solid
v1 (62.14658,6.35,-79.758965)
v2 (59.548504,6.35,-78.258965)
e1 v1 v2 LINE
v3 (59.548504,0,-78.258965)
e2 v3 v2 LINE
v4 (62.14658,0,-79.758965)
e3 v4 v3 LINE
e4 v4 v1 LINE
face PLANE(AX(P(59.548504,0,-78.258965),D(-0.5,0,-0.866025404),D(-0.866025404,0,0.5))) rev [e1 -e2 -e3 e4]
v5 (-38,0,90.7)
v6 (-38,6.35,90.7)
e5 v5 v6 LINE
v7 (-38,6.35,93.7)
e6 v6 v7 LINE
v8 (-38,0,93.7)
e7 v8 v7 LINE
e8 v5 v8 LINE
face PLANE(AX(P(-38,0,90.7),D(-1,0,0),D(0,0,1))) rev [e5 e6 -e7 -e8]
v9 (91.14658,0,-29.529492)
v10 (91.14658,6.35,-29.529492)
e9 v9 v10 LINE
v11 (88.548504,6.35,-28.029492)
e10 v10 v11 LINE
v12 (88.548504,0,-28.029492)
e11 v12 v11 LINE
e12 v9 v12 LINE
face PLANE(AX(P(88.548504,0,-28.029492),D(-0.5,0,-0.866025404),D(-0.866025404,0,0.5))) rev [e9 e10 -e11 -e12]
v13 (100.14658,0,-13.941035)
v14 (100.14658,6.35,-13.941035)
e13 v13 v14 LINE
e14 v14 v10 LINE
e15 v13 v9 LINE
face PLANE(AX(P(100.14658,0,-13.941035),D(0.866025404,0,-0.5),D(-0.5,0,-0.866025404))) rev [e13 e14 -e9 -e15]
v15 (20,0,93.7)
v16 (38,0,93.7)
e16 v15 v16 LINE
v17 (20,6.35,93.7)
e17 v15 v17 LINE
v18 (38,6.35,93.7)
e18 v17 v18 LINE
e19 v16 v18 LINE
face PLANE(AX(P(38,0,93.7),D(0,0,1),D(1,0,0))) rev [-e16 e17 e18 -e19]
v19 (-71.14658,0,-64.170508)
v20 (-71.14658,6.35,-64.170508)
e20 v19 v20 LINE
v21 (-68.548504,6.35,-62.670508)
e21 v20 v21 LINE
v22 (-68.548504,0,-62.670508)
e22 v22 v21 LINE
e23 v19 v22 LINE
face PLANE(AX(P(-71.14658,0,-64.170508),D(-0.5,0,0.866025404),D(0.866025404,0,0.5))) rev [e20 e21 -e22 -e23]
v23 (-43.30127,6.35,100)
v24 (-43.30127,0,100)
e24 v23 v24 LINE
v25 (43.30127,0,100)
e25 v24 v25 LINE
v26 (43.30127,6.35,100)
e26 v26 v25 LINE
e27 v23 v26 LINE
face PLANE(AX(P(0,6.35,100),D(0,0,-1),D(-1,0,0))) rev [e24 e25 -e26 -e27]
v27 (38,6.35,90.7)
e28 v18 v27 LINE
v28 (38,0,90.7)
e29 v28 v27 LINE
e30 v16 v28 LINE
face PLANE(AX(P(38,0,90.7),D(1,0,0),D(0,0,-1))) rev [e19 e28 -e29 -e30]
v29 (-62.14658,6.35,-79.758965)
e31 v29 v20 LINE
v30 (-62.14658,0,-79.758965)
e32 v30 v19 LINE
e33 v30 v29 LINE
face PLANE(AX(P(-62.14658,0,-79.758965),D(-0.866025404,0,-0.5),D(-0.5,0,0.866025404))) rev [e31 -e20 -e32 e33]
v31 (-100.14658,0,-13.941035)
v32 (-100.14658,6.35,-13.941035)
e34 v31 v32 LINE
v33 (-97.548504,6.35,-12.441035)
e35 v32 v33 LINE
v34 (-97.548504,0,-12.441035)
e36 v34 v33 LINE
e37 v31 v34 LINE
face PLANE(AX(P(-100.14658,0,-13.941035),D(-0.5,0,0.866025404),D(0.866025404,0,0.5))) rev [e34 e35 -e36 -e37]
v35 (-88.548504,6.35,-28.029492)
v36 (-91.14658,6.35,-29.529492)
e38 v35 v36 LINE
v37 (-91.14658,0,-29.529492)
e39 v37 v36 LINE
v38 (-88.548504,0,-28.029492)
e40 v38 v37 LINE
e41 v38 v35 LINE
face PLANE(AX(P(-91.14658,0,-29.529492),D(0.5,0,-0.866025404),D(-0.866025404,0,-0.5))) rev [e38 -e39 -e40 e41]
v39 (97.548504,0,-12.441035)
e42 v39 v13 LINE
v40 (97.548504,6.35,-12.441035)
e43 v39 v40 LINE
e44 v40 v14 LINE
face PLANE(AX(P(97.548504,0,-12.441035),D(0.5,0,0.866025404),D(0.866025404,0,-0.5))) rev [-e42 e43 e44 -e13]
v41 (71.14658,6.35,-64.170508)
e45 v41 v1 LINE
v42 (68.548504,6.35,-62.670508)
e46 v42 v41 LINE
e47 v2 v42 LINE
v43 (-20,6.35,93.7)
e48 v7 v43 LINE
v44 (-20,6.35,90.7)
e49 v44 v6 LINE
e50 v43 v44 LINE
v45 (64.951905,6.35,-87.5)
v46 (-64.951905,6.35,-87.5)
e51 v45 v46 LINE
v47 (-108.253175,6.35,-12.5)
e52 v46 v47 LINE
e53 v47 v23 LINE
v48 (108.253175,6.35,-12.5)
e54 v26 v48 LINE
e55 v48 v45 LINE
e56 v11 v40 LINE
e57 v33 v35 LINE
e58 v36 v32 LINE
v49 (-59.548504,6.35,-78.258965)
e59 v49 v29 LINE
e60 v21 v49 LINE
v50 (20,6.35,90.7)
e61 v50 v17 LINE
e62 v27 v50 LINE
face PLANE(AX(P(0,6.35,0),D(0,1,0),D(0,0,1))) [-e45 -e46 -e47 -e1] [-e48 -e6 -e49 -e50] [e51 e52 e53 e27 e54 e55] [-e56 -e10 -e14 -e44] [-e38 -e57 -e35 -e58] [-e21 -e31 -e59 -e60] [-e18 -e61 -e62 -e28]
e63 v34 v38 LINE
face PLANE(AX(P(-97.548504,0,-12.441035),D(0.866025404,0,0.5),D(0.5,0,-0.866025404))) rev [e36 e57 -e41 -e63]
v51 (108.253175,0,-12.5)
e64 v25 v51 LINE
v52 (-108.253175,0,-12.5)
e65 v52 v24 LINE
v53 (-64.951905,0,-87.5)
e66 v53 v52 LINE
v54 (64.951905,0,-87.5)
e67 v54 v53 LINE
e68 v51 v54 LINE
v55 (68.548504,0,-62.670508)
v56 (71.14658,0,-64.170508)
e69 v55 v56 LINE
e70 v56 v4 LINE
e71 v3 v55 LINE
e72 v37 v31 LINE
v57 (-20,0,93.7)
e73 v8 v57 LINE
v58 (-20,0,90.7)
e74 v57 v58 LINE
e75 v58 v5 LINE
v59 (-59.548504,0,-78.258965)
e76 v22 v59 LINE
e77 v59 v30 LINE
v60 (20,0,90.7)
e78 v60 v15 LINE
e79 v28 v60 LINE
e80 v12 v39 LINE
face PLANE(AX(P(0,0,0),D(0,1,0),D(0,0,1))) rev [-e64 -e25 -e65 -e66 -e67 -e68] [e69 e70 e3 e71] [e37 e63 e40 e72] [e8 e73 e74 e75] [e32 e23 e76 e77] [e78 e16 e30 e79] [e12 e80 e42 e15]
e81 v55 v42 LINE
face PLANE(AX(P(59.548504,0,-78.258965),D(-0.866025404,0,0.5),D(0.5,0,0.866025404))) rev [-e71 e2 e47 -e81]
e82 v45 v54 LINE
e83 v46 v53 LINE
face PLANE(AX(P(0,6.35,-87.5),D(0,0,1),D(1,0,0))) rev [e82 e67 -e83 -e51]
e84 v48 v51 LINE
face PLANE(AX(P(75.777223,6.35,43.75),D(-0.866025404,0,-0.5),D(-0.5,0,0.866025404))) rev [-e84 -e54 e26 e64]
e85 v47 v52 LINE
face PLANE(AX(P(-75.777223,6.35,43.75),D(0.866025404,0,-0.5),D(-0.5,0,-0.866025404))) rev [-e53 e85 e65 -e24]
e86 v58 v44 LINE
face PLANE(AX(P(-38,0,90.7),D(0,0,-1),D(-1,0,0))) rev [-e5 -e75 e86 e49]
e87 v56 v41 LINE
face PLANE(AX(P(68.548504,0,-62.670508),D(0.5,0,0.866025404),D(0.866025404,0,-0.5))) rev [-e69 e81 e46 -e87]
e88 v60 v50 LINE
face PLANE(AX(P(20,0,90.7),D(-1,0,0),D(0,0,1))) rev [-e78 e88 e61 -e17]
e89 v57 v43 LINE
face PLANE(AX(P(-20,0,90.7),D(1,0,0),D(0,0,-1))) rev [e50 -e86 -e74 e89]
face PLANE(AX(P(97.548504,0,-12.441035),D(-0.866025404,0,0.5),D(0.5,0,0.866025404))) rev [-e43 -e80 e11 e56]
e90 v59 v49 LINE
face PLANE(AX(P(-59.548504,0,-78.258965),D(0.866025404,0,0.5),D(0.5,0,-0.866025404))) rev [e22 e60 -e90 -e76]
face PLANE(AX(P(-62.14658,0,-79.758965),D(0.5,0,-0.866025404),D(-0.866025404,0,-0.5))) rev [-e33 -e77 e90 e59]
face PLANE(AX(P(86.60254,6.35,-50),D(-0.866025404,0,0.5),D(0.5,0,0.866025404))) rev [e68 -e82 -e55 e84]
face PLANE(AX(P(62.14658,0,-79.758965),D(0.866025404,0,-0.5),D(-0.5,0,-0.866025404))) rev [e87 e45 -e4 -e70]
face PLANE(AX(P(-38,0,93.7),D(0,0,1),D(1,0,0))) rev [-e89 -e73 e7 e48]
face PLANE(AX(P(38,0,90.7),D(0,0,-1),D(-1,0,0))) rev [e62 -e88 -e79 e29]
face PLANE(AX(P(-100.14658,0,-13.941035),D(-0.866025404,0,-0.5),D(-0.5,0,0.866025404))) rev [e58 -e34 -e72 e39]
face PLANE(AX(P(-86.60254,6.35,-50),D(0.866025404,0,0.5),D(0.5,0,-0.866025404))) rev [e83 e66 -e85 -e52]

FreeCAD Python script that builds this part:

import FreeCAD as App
import Part
import Sketcher

V = App.Vector
Q = App.Units.Quantity

doc = App.newDocument("Part")
body = doc.addObject("PartDesign::Body", "Body")

# Sketch on XZ plane
sketch1 = doc.addObject("Sketcher::SketchObject", "Sketch")
body.addObject(sketch1)
sketch1.AttachmentSupport = (doc.XZ_Plane, [""])
sketch1.MapMode = "FlatFace"
sketch1.addGeometry([
    Part.LineSegment(V(65, -88, 0), V(-65, -88, 0)),  # 0
    Part.LineSegment(V(-65, -88, 0), V(-108, -12, 0)),  # 1
    Part.LineSegment(V(-108, -12, 0), V(-43, 100, 0)),  # 2
    Part.LineSegment(V(-43, 100, 0), V(43, 100, 0)),  # 3
    Part.LineSegment(V(43, 100, 0), V(108, -12, 0)),  # 4
    Part.LineSegment(V(108, -12, 0), V(65, -88, 0)),  # 5
], False)
sketch1.addConstraint([
    Sketcher.Constraint("Coincident", 0, 2, 1, 1),
    Sketcher.Constraint("Coincident", 1, 2, 2, 1),
    Sketcher.Constraint("Coincident", 2, 2, 3, 1),
    Sketcher.Constraint("Coincident", 3, 2, 4, 1),
    Sketcher.Constraint("Coincident", 4, 2, 5, 1),
    Sketcher.Constraint("Coincident", 5, 2, 0, 1),
    Sketcher.Constraint("Horizontal", 0),
    Sketcher.Constraint("Horizontal", 3),
    Sketcher.Constraint("Symmetric", 1, 2, 4, 2, -2),
    Sketcher.Constraint("Parallel", 1, 4),
    Sketcher.Constraint("Parallel", 2, 5),
    Sketcher.Constraint("Equal", 2, 4),
    Sketcher.Constraint("Angle", 1, Q("120 deg")),
    Sketcher.Constraint("DistanceY", -1, 1, 2, 2, 100.0),
    Sketcher.Constraint("DistanceY", 0, 2, 1, 2, 75.0),
    Sketcher.Constraint("DistanceY", 0, 2, -1, 1, 87.5),
    Sketcher.Constraint("DistanceX", 0, 2, 0, 1, 129.903811),
])
pad1 = doc.addObject("PartDesign::Pad", "Pad")
body.addObject(pad1)
pad1.Profile = sketch1
pad1.Length = 6.35
pad1.Reversed = True

# Sketch on XZ plane
sketch2 = doc.addObject("Sketcher::SketchObject", "Sketch001")
body.addObject(sketch2)
sketch2.AttachmentSupport = (doc.XZ_Plane, [""])
sketch2.MapMode = "FlatFace"
sketch2.AttachmentOffset = App.Placement(V(0, 0, -6.35), App.Rotation())
sketch2.addGeometry([
    Part.LineSegment(V(-38, 90.7, 0), V(-38, 93.7, 0)),  # 0
    Part.LineSegment(V(-38, 93.7, 0), V(-20, 93.7, 0)),  # 1
    Part.LineSegment(V(-20, 93.7, 0), V(-20, 90.7, 0)),  # 2
    Part.LineSegment(V(-20, 90.7, 0), V(-38, 90.7, 0)),  # 3
    Part.LineSegment(V(20, 90.7, 0), V(20, 93.7, 0)),  # 4
    Part.LineSegment(V(20, 93.7, 0), V(38, 93.7, 0)),  # 5
    Part.LineSegment(V(38, 93.7, 0), V(38, 90.7, 0)),  # 6
    Part.LineSegment(V(38, 90.7, 0), V(20, 90.7, 0)),  # 7
    Part.LineSegment(V(-59.5, -78.3, 0), V(-62.1, -79.8, 0)),  # 8
    Part.LineSegment(V(-62.1, -79.8, 0), V(-71.1, -64.2, 0)),  # 9
    Part.LineSegment(V(-71.1, -64.2, 0), V(-68.5, -62.7, 0)),  # 10
    Part.LineSegment(V(-68.5, -62.7, 0), V(-59.5, -78.3, 0)),  # 11
    Part.LineSegment(V(-97.5, -12.4, 0), V(-88.5, -28, 0)),  # 12
    Part.LineSegment(V(-88.5, -28, 0), V(-91.1, -29.5, 0)),  # 13
    Part.LineSegment(V(-91.1, -29.5, 0), V(-100.1, -13.9, 0)),  # 14
    Part.LineSegment(V(-100.1, -13.9, 0), V(-97.5, -12.4, 0)),  # 15
    Part.LineSegment(V(100.1, -13.9, 0), V(91.1, -29.5, 0)),  # 16
    Part.LineSegment(V(91.1, -29.5, 0), V(88.5, -28, 0)),  # 17
    Part.LineSegment(V(88.5, -28, 0), V(97.5, -12.4, 0)),  # 18
    Part.LineSegment(V(97.5, -12.4, 0), V(100.1, -13.9, 0)),  # 19
    Part.LineSegment(V(62.1, -79.8, 0), V(59.5, -78.3, 0)),  # 20
    Part.LineSegment(V(59.5, -78.3, 0), V(68.5, -62.7, 0)),  # 21
    Part.LineSegment(V(68.5, -62.7, 0), V(71.1, -64.2, 0)),  # 22
    Part.LineSegment(V(71.1, -64.2, 0), V(62.1, -79.8, 0)),  # 23
], False)
sketch2.addConstraint([
    Sketcher.Constraint("Coincident", 0, 2, 1, 1),
    Sketcher.Constraint("Coincident", 1, 2, 2, 1),
    Sketcher.Constraint("Coincident", 2, 2, 3, 1),
    Sketcher.Constraint("Coincident", 3, 2, 0, 1),
    Sketcher.Constraint("Coincident", 4, 2, 5, 1),
    Sketcher.Constraint("Coincident", 5, 2, 6, 1),
    Sketcher.Constraint("Coincident", 6, 2, 7, 1),
    Sketcher.Constraint("Coincident", 7, 2, 4, 1),
    Sketcher.Constraint("Coincident", 8, 2, 9, 1),
    Sketcher.Constraint("Coincident", 9, 2, 10, 1),
    Sketcher.Constraint("Coincident", 10, 2, 11, 1),
    Sketcher.Constraint("Coincident", 11, 2, 8, 1),
    Sketcher.Constraint("Coincident", 12, 2, 13, 1),
    Sketcher.Constraint("Coincident", 13, 2, 14, 1),
    Sketcher.Constraint("Coincident", 14, 2, 15, 1),
    Sketcher.Constraint("Coincident", 15, 2, 12, 1),
    Sketcher.Constraint("Coincident", 16, 2, 17, 1),
    Sketcher.Constraint("Coincident", 17, 2, 18, 1),
    Sketcher.Constraint("Coincident", 18, 2, 19, 1),
    Sketcher.Constraint("Coincident", 19, 2, 16, 1),
    Sketcher.Constraint("Coincident", 20, 2, 21, 1),
    Sketcher.Constraint("Coincident", 21, 2, 22, 1),
    Sketcher.Constraint("Coincident", 22, 2, 23, 1),
    Sketcher.Constraint("Coincident", 23, 2, 20, 1),
    Sketcher.Constraint("Vertical", 0),
    Sketcher.Constraint("Horizontal", 1),
    Sketcher.Constraint("Vertical", 2),
    Sketcher.Constraint("Horizontal", 3),
    Sketcher.Constraint("Vertical", 4),
    Sketcher.Constraint("Horizontal", 5),
    Sketcher.Constraint("Vertical", 6),
    Sketcher.Constraint("Horizontal", 7),
    Sketcher.Constraint("Symmetric", 1, 2, 4, 2, -2),
    Sketcher.Constraint("Symmetric", 3, 2, 6, 2, -2),
    Sketcher.Constraint("Symmetric", 13, 2, 16, 2, -2),
    Sketcher.Constraint("Symmetric", 12, 2, 17, 2, -2),
    Sketcher.Constraint("Symmetric", 15, 2, 18, 2, -2),
    Sketcher.Constraint("Symmetric", 14, 2, 19, 2, -2),
    Sketcher.Constraint("Symmetric", 11, 2, 20, 2, -2),
    Sketcher.Constraint("Symmetric", 10, 2, 21, 2, -2),
    Sketcher.Constraint("Symmetric", 9, 2, 22, 2, -2),
    Sketcher.Constraint("Symmetric", 8, 2, 23, 2, -2),
    Sketcher.Constraint("Perpendicular", 8, 9),
    Sketcher.Constraint("Perpendicular", 9, 10),
    Sketcher.Constraint("Perpendicular", 10, 11),
    Sketcher.Constraint("Parallel", 11, 12),
    Sketcher.Constraint("Perpendicular", 12, 13),
    Sketcher.Constraint("Perpendicular", 13, 14),
    Sketcher.Constraint("Perpendicular", 14, 15),
    Sketcher.Constraint("Equal", 11, 12),
    Sketcher.Constraint("Equal", 10, 13),
    Sketcher.Constraint("DistanceX", 1, 1, 1, 2, 18.0),
    Sketcher.Constraint("DistanceY", 0, 1, 0, 2, 3.0),
    Sketcher.Constraint("Angle", 8, Q("-150 deg")),
    Sketcher.Constraint("Distance", 8, 3.0),
    Sketcher.Constraint("Distance", 9, 18.0),
    Sketcher.Constraint("DistanceX", 0, 2, -1, 1, 38.0),
    Sketcher.Constraint("DistanceX", 12, 2, 10, 2, 20.0),
    Sketcher.Constraint("DistanceY", -1, 1, 0, 2, 93.7),
    Sketcher.Constraint("DistanceX", 8, 2, -1, 1, 62.14658),
    Sketcher.Constraint("DistanceY", 9, 2, -1, 1, 64.170508),
    Sketcher.Constraint("DistanceY", 12, 2, -1, 1, 28.029492),
])
pocket1 = doc.addObject("PartDesign::Pocket", "Pocket")
body.addObject(pocket1)
pocket1.Profile = sketch2
pocket1.Type = "ThroughAll"
pocket1.Reversed = True

doc.recompute()
